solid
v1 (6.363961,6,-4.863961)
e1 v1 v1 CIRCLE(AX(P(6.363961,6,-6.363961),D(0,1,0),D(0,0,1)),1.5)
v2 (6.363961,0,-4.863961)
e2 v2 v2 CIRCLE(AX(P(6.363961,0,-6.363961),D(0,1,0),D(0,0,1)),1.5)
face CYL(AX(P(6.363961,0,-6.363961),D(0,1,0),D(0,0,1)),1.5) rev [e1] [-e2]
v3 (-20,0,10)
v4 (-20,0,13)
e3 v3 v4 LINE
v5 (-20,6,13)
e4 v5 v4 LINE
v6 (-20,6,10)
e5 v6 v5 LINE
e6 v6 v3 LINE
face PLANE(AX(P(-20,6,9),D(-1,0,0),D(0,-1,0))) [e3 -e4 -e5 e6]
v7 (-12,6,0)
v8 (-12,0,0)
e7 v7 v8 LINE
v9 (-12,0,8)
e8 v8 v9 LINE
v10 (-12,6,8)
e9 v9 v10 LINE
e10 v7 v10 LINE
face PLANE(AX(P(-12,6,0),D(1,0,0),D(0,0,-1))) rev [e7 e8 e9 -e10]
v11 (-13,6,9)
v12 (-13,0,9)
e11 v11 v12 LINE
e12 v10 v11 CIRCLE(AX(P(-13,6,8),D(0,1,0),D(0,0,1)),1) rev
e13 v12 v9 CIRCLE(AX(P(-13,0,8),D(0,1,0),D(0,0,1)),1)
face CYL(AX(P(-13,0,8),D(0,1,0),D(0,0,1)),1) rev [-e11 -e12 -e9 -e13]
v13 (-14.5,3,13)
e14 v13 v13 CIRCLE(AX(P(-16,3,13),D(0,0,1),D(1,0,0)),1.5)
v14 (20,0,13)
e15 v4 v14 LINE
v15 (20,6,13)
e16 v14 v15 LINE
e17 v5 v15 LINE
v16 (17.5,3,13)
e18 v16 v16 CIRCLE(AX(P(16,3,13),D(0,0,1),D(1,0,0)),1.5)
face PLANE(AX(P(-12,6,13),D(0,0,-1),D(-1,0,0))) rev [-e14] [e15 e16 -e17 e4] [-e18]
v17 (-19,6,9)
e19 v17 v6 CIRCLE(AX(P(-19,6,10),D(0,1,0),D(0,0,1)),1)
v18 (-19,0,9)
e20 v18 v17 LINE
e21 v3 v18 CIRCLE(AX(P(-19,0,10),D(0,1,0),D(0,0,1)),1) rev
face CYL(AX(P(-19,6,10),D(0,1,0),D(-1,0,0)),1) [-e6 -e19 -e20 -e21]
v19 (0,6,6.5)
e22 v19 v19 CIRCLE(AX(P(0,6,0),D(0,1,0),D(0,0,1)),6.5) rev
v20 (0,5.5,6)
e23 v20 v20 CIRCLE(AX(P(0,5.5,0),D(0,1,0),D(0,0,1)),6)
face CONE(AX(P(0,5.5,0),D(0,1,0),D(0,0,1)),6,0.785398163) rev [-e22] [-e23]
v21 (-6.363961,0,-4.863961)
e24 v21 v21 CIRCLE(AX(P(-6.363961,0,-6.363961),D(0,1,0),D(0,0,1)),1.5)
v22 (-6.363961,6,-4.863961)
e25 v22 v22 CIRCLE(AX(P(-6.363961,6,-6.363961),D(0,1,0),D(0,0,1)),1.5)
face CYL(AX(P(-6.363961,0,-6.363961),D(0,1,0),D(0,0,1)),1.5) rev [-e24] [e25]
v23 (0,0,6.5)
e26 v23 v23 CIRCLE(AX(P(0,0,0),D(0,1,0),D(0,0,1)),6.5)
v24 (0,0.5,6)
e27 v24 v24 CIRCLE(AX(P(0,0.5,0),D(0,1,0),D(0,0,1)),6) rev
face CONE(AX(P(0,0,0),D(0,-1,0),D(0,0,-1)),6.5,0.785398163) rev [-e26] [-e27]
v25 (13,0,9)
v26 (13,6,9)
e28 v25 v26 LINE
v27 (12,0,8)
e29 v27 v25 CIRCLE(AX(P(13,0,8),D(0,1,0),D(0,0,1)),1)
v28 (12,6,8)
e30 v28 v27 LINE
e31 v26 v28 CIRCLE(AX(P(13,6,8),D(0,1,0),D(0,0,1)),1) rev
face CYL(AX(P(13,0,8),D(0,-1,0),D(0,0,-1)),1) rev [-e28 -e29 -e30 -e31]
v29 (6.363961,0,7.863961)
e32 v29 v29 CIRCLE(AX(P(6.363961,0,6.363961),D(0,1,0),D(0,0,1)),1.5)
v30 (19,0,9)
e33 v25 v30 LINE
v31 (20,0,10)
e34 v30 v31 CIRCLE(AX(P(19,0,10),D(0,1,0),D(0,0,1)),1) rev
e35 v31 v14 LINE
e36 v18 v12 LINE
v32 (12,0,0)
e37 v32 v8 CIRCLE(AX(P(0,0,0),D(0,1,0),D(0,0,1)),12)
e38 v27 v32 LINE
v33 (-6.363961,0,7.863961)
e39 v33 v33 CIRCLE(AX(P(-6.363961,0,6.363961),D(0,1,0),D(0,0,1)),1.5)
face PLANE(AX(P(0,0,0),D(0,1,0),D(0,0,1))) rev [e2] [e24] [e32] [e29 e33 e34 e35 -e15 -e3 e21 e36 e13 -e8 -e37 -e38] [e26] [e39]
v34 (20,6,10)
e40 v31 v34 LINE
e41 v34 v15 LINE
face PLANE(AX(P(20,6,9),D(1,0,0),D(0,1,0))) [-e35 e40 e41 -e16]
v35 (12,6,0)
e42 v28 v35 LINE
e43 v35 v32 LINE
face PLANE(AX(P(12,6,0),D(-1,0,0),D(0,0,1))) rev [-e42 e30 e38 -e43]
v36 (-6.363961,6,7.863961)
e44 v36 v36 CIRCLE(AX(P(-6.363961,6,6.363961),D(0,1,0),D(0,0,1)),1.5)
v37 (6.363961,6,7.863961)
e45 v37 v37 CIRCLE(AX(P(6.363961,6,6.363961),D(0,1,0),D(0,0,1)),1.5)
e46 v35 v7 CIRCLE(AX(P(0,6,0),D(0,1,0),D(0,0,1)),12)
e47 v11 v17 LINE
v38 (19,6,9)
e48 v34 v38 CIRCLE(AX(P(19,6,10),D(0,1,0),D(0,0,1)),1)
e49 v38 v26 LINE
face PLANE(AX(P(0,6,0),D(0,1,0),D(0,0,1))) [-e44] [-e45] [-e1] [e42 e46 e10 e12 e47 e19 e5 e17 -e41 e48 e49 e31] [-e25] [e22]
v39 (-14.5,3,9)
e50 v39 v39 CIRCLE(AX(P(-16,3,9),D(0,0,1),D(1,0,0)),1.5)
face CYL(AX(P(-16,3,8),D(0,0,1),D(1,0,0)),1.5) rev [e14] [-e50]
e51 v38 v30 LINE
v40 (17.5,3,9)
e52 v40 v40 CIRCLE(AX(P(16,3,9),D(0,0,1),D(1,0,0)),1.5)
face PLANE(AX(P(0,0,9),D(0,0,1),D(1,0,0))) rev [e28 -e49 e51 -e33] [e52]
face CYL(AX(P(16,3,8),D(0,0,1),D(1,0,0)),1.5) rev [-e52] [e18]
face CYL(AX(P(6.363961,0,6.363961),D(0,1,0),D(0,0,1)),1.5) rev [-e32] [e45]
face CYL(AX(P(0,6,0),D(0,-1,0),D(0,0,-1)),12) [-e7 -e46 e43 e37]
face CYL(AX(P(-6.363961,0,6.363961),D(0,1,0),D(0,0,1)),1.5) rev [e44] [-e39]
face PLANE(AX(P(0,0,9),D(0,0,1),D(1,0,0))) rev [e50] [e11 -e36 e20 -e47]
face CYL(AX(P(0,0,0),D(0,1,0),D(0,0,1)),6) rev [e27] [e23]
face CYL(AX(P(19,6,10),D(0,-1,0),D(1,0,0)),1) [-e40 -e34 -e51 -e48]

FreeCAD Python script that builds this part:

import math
import FreeCAD as App
import Part
import Sketcher
Q = App.Units.Quantity


def edges_at(feature, points):
    """Names of the edges that pass closest to the given points."""
    edges = feature.Shape.Edges
    near = lambda p: min(range(len(edges)), key=lambda i: edges[i].distToShape(Part.Vertex(*p))[0])
    return sorted({f"Edge{near(p) + 1}" for p in points})


def add_polygon(sketch, points):
    """Adds a closed chain of lines whose ends are joined by coincident constraints."""
    first, n = sketch.GeometryCount, len(points)
    for a, b in zip(points, points[1:] + points[:1]):
        sketch.addGeometry(Part.LineSegment(App.Vector(*a, 0), App.Vector(*b, 0)), False)
    for i in range(n):
        sketch.addConstraint(Sketcher.Constraint("Coincident", first + i, 2, first + (i + 1) % n, 1))

doc = App.newDocument("Part")
body = doc.addObject("PartDesign::Body", "Body")

sketch1 = body.newObject("Sketcher::SketchObject", "Sketch")
sketch1.AttachmentSupport = (doc.getObject("XZ_Plane"), [""])
sketch1.MapMode = "FlatFace"
sketch1.addGeometry([
    Part.LineSegment(App.Vector(-12, 0, 0), App.Vector(-12, 13, 0)),
    Part.LineSegment(App.Vector(-12, 13, 0), App.Vector(12, 13, 0)),
    Part.LineSegment(App.Vector(12, 13, 0), App.Vector(12, 0, 0)),
    Part.ArcOfCircle(Part.Circle(App.Vector(0, 0, 0), App.Vector(0, 0, 1), 12), math.radians(180), math.radians(360)),
], False)
sketch1.addConstraint([
    Sketcher.Constraint("Coincident", 0, 2, 1, 1),
    Sketcher.Constraint("Coincident", 1, 2, 2, 1),
    Sketcher.Constraint("Tangent", 2, 2, 3, 2),
    Sketcher.Constraint("Tangent", 3, 1, 0, 1),
    Sketcher.Constraint("Vertical", 0),
    Sketcher.Constraint("Horizontal", 1),
    Sketcher.Constraint("Vertical", 2),
    Sketcher.Constraint("Coincident", 3, 3, -1, 1),
    Sketcher.Constraint("Radius", 3, Q("12 mm")),
    Sketcher.Constraint("DistanceY", 0, 1, 0, 2, Q("13 mm")),
])
pad1 = body.newObject("PartDesign::Pad", "Pad")
pad1.Profile = sketch1
pad1.Length = 6
pad1.Reversed = True

sketch2 = body.newObject("Sketcher::SketchObject", "Sketch001")
sketch2.AttachmentSupport = (doc.getObject("XZ_Plane"), [""])
sketch2.MapMode = "FlatFace"
sketch2.AttachmentOffset = App.Placement(App.Vector(0, 0, -6), App.Rotation())
sketch2.addGeometry(Part.Circle(App.Vector(0, 0, 0), App.Vector(0, 0, 1), 6), False)
sketch2.addConstraint([
    Sketcher.Constraint("Coincident", 0, 3, -1, 1),
    Sketcher.Constraint("Diameter", 0, Q("12 mm")),
])
pocket1 = body.newObject("PartDesign::Pocket", "Pocket")
pocket1.Profile = sketch2
pocket1.Length = 6
pocket1.Reversed = True

sketch3 = body.newObject("Sketcher::SketchObject", "Sketch002")
sketch3.AttachmentSupport = (doc.getObject("XZ_Plane"), [""])
sketch3.MapMode = "FlatFace"
sketch3.AttachmentOffset = App.Placement(App.Vector(0, 0, -6), App.Rotation())
sketch3.addGeometry([
    Part.Circle(App.Vector(-6.4, -6.4, 0), App.Vector(0, 0, 1), 1.5),
    Part.Circle(App.Vector(6.4, -6.4, 0), App.Vector(0, 0, 1), 1.5),
    Part.Circle(App.Vector(6.4, 6.4, 0), App.Vector(0, 0, 1), 1.5),
    Part.Circle(App.Vector(-6.4, 6.4, 0), App.Vector(0, 0, 1), 1.5),
], False)
sketch3.addConstraint([
    Sketcher.Constraint("Equal", 0, 1),
    Sketcher.Constraint("Equal", 1, 2),
    Sketcher.Constraint("Equal", 2, 3),
    Sketcher.Constraint("Symmetric", 0, 3, 2, 3, -1, 1),
    Sketcher.Constraint("Symmetric", 1, 3, 3, 3, -1, 1),
    Sketcher.Constraint("Symmetric", 0, 3, 1, 3, -2),
    Sketcher.Constraint("Diameter", 0, Q("3 mm")),
    Sketcher.Constraint("DistanceX", 0, 3, -1, 1, Q("6.363961 mm")),
    Sketcher.Constraint("DistanceY", 0, 3, -1, 1, Q("6.363961 mm")),
])
pocket2 = body.newObject("PartDesign::Pocket", "Pocket001")
pocket2.Profile = sketch3
pocket2.Length = 6
pocket2.Reversed = True

sketch4 = body.newObject("Sketcher::SketchObject", "Sketch003")
sketch4.AttachmentSupport = (doc.getObject("XY_Plane"), [""])
sketch4.MapMode = "FlatFace"
sketch4.AttachmentOffset = App.Placement(App.Vector(0, 0, 13), App.Rotation())
add_polygon(sketch4, [(-20, 6), (-20, 0), (20, 0), (20, 6)])
sketch4.addConstraint([
    Sketcher.Constraint("Vertical", 0),
    Sketcher.Constraint("Horizontal", 1),
    Sketcher.Constraint("Vertical", 2),
    Sketcher.Constraint("Horizontal", 3),
    Sketcher.Constraint("Symmetric", 0, 2, 1, 2, -1, 1),
    Sketcher.Constraint("DistanceX", 1, 1, 1, 2, Q("40 mm")),
    Sketcher.Constraint("DistanceY", 0, 2, 0, 1, Q("6 mm")),
])
pad2 = body.newObject("PartDesign::Pad", "Pad001")
pad2.Profile = sketch4
pad2.Length = 4
pad2.Reversed = True

sketch5 = body.newObject("Sketcher::SketchObject", "Sketch004")
sketch5.AttachmentSupport = (doc.getObject("XY_Plane"), [""])
sketch5.MapMode = "FlatFace"
sketch5.AttachmentOffset = App.Placement(App.Vector(0, 0, 13), App.Rotation())
sketch5.addGeometry([
    Part.Circle(App.Vector(-16, 3, 0), App.Vector(0, 0, 1), 1.5),
    Part.Circle(App.Vector(16, 3, 0), App.Vector(0, 0, 1), 1.5),
], False)
sketch5.addConstraint([
    Sketcher.Constraint("Equal", 0, 1),
    Sketcher.Constraint("Symmetric", 0, 3, 1, 3, -2),
    Sketcher.Constraint("Diameter", 0, Q("3 mm")),
    Sketcher.Constraint("DistanceX", 0, 3, -1, 1, Q("16 mm")),
    Sketcher.Constraint("DistanceY", -1, 1, 0, 3, Q("3 mm")),
])
pocket3 = body.newObject("PartDesign::Pocket", "Pocket002")
pocket3.Profile = sketch5
pocket3.Length = 5
doc.recompute()

fillet = body.newObject("PartDesign::Fillet", "Fillet")
fillet.Base = (pocket3, edges_at(pocket3, [
    (-12, 3, 9),
    (12, 3, 9),
    (-20, 3, 9),
    (20, 3, 9),
]))
fillet.Radius = 1
doc.recompute()

chamfer = body.newObject("PartDesign::Chamfer", "Chamfer")
chamfer.Base = (fillet, edges_at(fillet, [(0, 0, -6), (0, 6, -6)]))
chamfer.Size = 0.5

doc.recompute()
